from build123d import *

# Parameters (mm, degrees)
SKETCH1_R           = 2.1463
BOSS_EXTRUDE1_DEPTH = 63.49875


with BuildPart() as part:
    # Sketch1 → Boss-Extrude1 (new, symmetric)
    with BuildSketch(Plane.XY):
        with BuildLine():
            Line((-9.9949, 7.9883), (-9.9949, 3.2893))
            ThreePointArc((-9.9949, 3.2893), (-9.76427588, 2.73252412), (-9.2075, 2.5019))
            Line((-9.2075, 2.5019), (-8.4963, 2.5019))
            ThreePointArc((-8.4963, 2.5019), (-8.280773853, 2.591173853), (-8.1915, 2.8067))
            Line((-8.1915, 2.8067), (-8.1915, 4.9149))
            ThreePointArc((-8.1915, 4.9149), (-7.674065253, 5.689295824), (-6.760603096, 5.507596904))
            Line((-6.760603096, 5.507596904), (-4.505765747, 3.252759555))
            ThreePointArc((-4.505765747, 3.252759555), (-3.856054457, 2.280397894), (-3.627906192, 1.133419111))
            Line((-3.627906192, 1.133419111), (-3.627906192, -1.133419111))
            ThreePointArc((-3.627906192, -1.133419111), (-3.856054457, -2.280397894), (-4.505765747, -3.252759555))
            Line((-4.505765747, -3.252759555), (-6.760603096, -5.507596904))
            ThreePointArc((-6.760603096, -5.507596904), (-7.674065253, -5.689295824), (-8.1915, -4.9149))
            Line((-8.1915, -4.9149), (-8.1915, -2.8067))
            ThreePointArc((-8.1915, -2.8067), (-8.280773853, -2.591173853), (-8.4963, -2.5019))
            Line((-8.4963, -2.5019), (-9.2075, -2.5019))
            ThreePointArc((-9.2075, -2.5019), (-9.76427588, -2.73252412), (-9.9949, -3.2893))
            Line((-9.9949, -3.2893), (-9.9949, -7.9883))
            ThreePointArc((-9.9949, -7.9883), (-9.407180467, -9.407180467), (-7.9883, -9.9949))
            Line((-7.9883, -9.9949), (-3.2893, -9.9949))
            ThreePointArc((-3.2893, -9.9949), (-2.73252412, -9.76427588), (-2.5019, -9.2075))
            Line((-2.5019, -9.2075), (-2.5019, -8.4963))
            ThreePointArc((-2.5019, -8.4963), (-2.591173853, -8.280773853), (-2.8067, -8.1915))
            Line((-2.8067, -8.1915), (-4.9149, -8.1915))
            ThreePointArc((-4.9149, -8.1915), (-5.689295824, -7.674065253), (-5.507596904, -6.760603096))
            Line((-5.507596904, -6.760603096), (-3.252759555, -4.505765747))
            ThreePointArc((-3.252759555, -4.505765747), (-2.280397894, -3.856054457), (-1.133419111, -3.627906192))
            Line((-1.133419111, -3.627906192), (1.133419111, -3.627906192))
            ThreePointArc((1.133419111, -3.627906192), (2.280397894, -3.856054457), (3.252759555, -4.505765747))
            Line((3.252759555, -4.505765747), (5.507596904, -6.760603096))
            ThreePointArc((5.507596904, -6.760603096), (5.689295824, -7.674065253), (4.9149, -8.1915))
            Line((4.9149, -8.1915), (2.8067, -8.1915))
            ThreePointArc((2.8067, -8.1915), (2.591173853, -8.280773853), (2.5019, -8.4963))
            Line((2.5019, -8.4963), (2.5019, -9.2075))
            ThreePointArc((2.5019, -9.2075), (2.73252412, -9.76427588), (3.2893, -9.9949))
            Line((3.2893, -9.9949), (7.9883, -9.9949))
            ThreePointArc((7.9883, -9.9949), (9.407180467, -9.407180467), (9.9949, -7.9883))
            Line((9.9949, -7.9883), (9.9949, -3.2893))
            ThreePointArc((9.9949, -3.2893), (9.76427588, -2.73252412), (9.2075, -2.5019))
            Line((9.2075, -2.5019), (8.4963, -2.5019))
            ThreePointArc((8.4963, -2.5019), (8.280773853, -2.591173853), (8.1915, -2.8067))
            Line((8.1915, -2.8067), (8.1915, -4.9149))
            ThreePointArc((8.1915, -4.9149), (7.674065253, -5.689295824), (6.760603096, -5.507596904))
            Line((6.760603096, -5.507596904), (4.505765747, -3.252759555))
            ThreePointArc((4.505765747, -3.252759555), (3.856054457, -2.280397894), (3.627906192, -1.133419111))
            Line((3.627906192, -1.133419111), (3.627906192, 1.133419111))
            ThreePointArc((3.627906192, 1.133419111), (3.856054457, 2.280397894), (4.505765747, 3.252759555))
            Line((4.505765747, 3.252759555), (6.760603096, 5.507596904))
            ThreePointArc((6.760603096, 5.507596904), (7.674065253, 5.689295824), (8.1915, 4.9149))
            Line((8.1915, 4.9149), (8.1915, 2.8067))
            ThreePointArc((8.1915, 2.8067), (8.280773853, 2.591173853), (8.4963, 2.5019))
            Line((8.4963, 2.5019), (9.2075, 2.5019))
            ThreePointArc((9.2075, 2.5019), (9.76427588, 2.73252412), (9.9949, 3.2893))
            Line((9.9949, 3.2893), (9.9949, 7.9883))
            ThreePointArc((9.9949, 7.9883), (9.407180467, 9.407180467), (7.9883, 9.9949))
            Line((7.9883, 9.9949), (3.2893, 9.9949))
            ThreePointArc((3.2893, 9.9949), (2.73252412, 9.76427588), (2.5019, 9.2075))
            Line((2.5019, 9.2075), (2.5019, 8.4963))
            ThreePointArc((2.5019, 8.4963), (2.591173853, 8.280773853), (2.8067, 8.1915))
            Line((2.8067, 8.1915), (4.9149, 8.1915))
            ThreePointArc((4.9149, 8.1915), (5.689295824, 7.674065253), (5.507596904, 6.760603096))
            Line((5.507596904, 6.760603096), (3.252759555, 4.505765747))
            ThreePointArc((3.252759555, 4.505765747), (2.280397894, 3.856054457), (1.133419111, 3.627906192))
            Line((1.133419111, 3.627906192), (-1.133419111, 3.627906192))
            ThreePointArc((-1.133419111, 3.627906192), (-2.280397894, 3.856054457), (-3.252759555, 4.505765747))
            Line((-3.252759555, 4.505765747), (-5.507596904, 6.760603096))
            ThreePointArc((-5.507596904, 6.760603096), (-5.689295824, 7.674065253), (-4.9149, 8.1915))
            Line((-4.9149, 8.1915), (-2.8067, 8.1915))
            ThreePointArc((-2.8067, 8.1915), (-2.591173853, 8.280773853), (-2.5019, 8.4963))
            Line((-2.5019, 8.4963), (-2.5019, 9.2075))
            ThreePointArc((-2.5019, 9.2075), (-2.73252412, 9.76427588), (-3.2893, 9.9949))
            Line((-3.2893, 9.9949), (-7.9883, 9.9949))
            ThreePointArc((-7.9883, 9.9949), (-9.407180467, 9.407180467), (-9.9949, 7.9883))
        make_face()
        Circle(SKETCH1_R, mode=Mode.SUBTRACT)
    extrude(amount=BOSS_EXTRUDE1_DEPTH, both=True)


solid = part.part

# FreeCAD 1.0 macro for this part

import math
import FreeCAD as App
import Part
import Sketcher
Q = App.Units.Quantity

doc = App.newDocument("Part")
params = doc.addObject("Spreadsheet::Sheet", "Params")
for row, (alias, value) in enumerate([
    ("sketch1_diameter", "0.169 in"),
    ("sketch1_radius", "0.031 in"),
    ("sketch1_radius2", "0.012 in"),
    ("sketch1_radius3", "0.033 in"),
    ("sketch1_radius4", "0.118 in"),
    ("pad1_length", "126.9975 mm"),
], start=1):
    params.set(f"A{row}", alias)
    params.set(f"B{row}", "=" + value)
    params.setAlias(f"B{row}", alias)

body = doc.addObject("PartDesign::Body", "Body")

sketch1 = doc.addObject("Sketcher::SketchObject", "Sketch")
body.addObject(sketch1)
sketch1.AttachmentSupport = (doc.XY_Plane, [""])
sketch1.MapMode = "FlatFace"
sketch1.addGeometry([
    Part.LineSegment(App.Vector(-9.99, 7.99, 0), App.Vector(-9.99, 3.29, 0)),
    Part.ArcOfCircle(Part.Circle(App.Vector(-9.21, 3.29, 0), App.Vector(0, 0, 1), 0.79), math.radians(180), math.radians(270)),
    Part.LineSegment(App.Vector(-9.21, 2.5, 0), App.Vector(-8.5, 2.5, 0)),
    Part.ArcOfCircle(Part.Circle(App.Vector(-8.5, 2.81, 0), App.Vector(0, 0, 1), 0.3), math.radians(-90), math.radians(0)),
    Part.LineSegment(App.Vector(-8.19, 2.81, 0), App.Vector(-8.19, 4.91, 0)),
    Part.ArcOfCircle(Part.Circle(App.Vector(-7.35, 4.91, 0), App.Vector(0, 0, 1), 0.84), math.radians(45), math.radians(180)),
    Part.LineSegment(App.Vector(-6.76, 5.51, 0), App.Vector(-4.51, 3.25, 0)),
    Part.ArcOfCircle(Part.Circle(App.Vector(-6.63, 1.13, 0), App.Vector(0, 0, 1), 3), math.radians(0), math.radians(45)),
    Part.LineSegment(App.Vector(-3.63, 1.13, 0), App.Vector(-3.63, -1.13, 0)),
    Part.ArcOfCircle(Part.Circle(App.Vector(-6.63, -1.13, 0), App.Vector(0, 0, 1), 3), math.radians(-45), math.radians(0)),
    Part.LineSegment(App.Vector(-4.51, -3.25, 0), App.Vector(-6.76, -5.51, 0)),
    Part.ArcOfCircle(Part.Circle(App.Vector(-7.35, -4.91, 0), App.Vector(0, 0, 1), 0.84), math.radians(180), math.radians(315)),
    Part.LineSegment(App.Vector(-8.19, -4.91, 0), App.Vector(-8.19, -2.81, 0)),
    Part.ArcOfCircle(Part.Circle(App.Vector(-8.5, -2.81, 0), App.Vector(0, 0, 1), 0.3), math.radians(0), math.radians(90)),
    Part.LineSegment(App.Vector(-8.5, -2.5, 0), App.Vector(-9.21, -2.5, 0)),
    Part.ArcOfCircle(Part.Circle(App.Vector(-9.21, -3.29, 0), App.Vector(0, 0, 1), 0.79), math.radians(90), math.radians(180)),
    Part.LineSegment(App.Vector(-9.99, -3.29, 0), App.Vector(-9.99, -7.99, 0)),
    Part.ArcOfCircle(Part.Circle(App.Vector(-7.99, -7.99, 0), App.Vector(0, 0, 1), 2.01), math.radians(180), math.radians(270)),
    Part.LineSegment(App.Vector(-7.99, -9.99, 0), App.Vector(-3.29, -9.99, 0)),
    Part.ArcOfCircle(Part.Circle(App.Vector(-3.29, -9.21, 0), App.Vector(0, 0, 1), 0.79), math.radians(-90), math.radians(0)),
    Part.LineSegment(App.Vector(-2.5, -9.21, 0), App.Vector(-2.5, -8.5, 0)),
    Part.ArcOfCircle(Part.Circle(App.Vector(-2.81, -8.5, 0), App.Vector(0, 0, 1), 0.3), math.radians(0), math.radians(90)),
    Part.LineSegment(App.Vector(-2.81, -8.19, 0), App.Vector(-4.91, -8.19, 0)),
    Part.ArcOfCircle(Part.Circle(App.Vector(-4.91, -7.35, 0), App.Vector(0, 0, 1), 0.84), math.radians(135), math.radians(270)),
    Part.LineSegment(App.Vector(-5.51, -6.76, 0), App.Vector(-3.25, -4.51, 0)),
    Part.ArcOfCircle(Part.Circle(App.Vector(-1.13, -6.63, 0), App.Vector(0, 0, 1), 3), math.radians(90), math.radians(135)),
    Part.LineSegment(App.Vector(-1.13, -3.63, 0), App.Vector(1.13, -3.63, 0)),
    Part.ArcOfCircle(Part.Circle(App.Vector(1.13, -6.63, 0), App.Vector(0, 0, 1), 3), math.radians(45), math.radians(90)),
    Part.LineSegment(App.Vector(3.25, -4.51, 0), App.Vector(5.51, -6.76, 0)),
    Part.ArcOfCircle(Part.Circle(App.Vector(4.91, -7.35, 0), App.Vector(0, 0, 1), 0.84), math.radians(-90), math.radians(45)),
    Part.LineSegment(App.Vector(4.91, -8.19, 0), App.Vector(2.81, -8.19, 0)),
    Part.ArcOfCircle(Part.Circle(App.Vector(2.81, -8.5, 0), App.Vector(0, 0, 1), 0.3), math.radians(90), math.radians(180)),
    Part.LineSegment(App.Vector(2.5, -8.5, 0), App.Vector(2.5, -9.21, 0)),
    Part.ArcOfCircle(Part.Circle(App.Vector(3.29, -9.21, 0), App.Vector(0, 0, 1), 0.79), math.radians(180), math.radians(270)),
    Part.LineSegment(App.Vector(3.29, -9.99, 0), App.Vector(7.99, -9.99, 0)),
    Part.ArcOfCircle(Part.Circle(App.Vector(7.99, -7.99, 0), App.Vector(0, 0, 1), 2.01), math.radians(-90), math.radians(0)),
    Part.LineSegment(App.Vector(9.99, -7.99, 0), App.Vector(9.99, -3.29, 0)),
    Part.ArcOfCircle(Part.Circle(App.Vector(9.21, -3.29, 0), App.Vector(0, 0, 1), 0.79), math.radians(0), math.radians(90)),
    Part.LineSegment(App.Vector(9.21, -2.5, 0), App.Vector(8.5, -2.5, 0)),
    Part.ArcOfCircle(Part.Circle(App.Vector(8.5, -2.81, 0), App.Vector(0, 0, 1), 0.3), math.radians(90), math.radians(180)),
    Part.LineSegment(App.Vector(8.19, -2.81, 0), App.Vector(8.19, -4.91, 0)),
    Part.ArcOfCircle(Part.Circle(App.Vector(7.35, -4.91, 0), App.Vector(0, 0, 1), 0.84), math.radians(-135), math.radians(0)),
    Part.LineSegment(App.Vector(6.76, -5.51, 0), App.Vector(4.51, -3.25, 0)),
    Part.ArcOfCircle(Part.Circle(App.Vector(6.63, -1.13, 0), App.Vector(0, 0, 1), 3), math.radians(180), math.radians(225)),
    Part.LineSegment(App.Vector(3.63, -1.13, 0), App.Vector(3.63, 1.13, 0)),
    Part.ArcOfCircle(Part.Circle(App.Vector(6.63, 1.13, 0), App.Vector(0, 0, 1), 3), math.radians(135), math.radians(180)),
    Part.LineSegment(App.Vector(4.51, 3.25, 0), App.Vector(6.76, 5.51, 0)),
    Part.ArcOfCircle(Part.Circle(App.Vector(7.35, 4.91, 0), App.Vector(0, 0, 1), 0.84), math.radians(0), math.radians(135)),
    Part.LineSegment(App.Vector(8.19, 4.91, 0), App.Vector(8.19, 2.81, 0)),
    Part.ArcOfCircle(Part.Circle(App.Vector(8.5, 2.81, 0), App.Vector(0, 0, 1), 0.3), math.radians(180), math.radians(270)),
    Part.LineSegment(App.Vector(8.5, 2.5, 0), App.Vector(9.21, 2.5, 0)),
    Part.ArcOfCircle(Part.Circle(App.Vector(9.21, 3.29, 0), App.Vector(0, 0, 1), 0.79), math.radians(-90), math.radians(0)),
    Part.LineSegment(App.Vector(9.99, 3.29, 0), App.Vector(9.99, 7.99, 0)),
    Part.ArcOfCircle(Part.Circle(App.Vector(7.99, 7.99, 0), App.Vector(0, 0, 1), 2.01), math.radians(0), math.radians(90)),
    Part.LineSegment(App.Vector(7.99, 9.99, 0), App.Vector(3.29, 9.99, 0)),
    Part.ArcOfCircle(Part.Circle(App.Vector(3.29, 9.21, 0), App.Vector(0, 0, 1), 0.79), math.radians(90), math.radians(180)),
    Part.LineSegment(App.Vector(2.5, 9.21, 0), App.Vector(2.5, 8.5, 0)),
    Part.ArcOfCircle(Part.Circle(App.Vector(2.81, 8.5, 0), App.Vector(0, 0, 1), 0.3), math.radians(180), math.radians(270)),
    Part.LineSegment(App.Vector(2.81, 8.19, 0), App.Vector(4.91, 8.19, 0)),
    Part.ArcOfCircle(Part.Circle(App.Vector(4.91, 7.35, 0), App.Vector(0, 0, 1), 0.84), math.radians(-45), math.radians(90)),
    Part.LineSegment(App.Vector(5.51, 6.76, 0), App.Vector(3.25, 4.51, 0)),
    Part.ArcOfCircle(Part.Circle(App.Vector(1.13, 6.63, 0), App.Vector(0, 0, 1), 3), math.radians(-90), math.radians(-45)),
    Part.LineSegment(App.Vector(1.13, 3.63, 0), App.Vector(-1.13, 3.63, 0)),
    Part.ArcOfCircle(Part.Circle(App.Vector(-1.13, 6.63, 0), App.Vector(0, 0, 1), 3), math.radians(-135), math.radians(-90)),
    Part.LineSegment(App.Vector(-3.25, 4.51, 0), App.Vector(-5.51, 6.76, 0)),
    Part.ArcOfCircle(Part.Circle(App.Vector(-4.91, 7.35, 0), App.Vector(0, 0, 1), 0.84), math.radians(90), math.radians(225)),
    Part.LineSegment(App.Vector(-4.91, 8.19, 0), App.Vector(-2.81, 8.19, 0)),
    Part.ArcOfCircle(Part.Circle(App.Vector(-2.81, 8.5, 0), App.Vector(0, 0, 1), 0.3), math.radians(-90), math.radians(0)),
    Part.LineSegment(App.Vector(-2.5, 8.5, 0), App.Vector(-2.5, 9.21, 0)),
    Part.ArcOfCircle(Part.Circle(App.Vector(-3.29, 9.21, 0), App.Vector(0, 0, 1), 0.79), math.radians(0), math.radians(90)),
    Part.LineSegment(App.Vector(-3.29, 9.99, 0), App.Vector(-7.99, 9.99, 0)),
    Part.ArcOfCircle(Part.Circle(App.Vector(-7.99, 7.99, 0), App.Vector(0, 0, 1), 2.01), math.radians(90), math.radians(180)),
    Part.Circle(App.Vector(0, 0, 0), App.Vector(0, 0, 1), 2.15),
], False)
sketch1.addConstraint([
    Sketcher.Constraint("Tangent", 0, 2, 1, 1),
    Sketcher.Constraint("Tangent", 1, 2, 2, 1),
    Sketcher.Constraint("Tangent", 2, 2, 3, 1),
    Sketcher.Constraint("Tangent", 3, 2, 4, 1),
    Sketcher.Constraint("Tangent", 4, 2, 5, 2),
    Sketcher.Constraint("Tangent", 5, 1, 6, 1),
    Sketcher.Constraint("Tangent", 6, 2, 7, 2),
    Sketcher.Constraint("Tangent", 7, 1, 8, 1),
    Sketcher.Constraint("Tangent", 8, 2, 9, 2),
    Sketcher.Constraint("Tangent", 9, 1, 10, 1),
    Sketcher.Constraint("Tangent", 10, 2, 11, 2),
    Sketcher.Constraint("Tangent", 11, 1, 12, 1),
    Sketcher.Constraint("Tangent", 12, 2, 13, 1),
    Sketcher.Constraint("Tangent", 13, 2, 14, 1),
    Sketcher.Constraint("Tangent", 14, 2, 15, 1),
    Sketcher.Constraint("Tangent", 15, 2, 16, 1),
    Sketcher.Constraint("Tangent", 16, 2, 17, 1),
    Sketcher.Constraint("Tangent", 17, 2, 18, 1),
    Sketcher.Constraint("Tangent", 18, 2, 19, 1),
    Sketcher.Constraint("Tangent", 19, 2, 20, 1),
    Sketcher.Constraint("Tangent", 20, 2, 21, 1),
    Sketcher.Constraint("Tangent", 21, 2, 22, 1),
    Sketcher.Constraint("Tangent", 22, 2, 23, 2),
    Sketcher.Constraint("Tangent", 23, 1, 24, 1),
    Sketcher.Constraint("Tangent", 24, 2, 25, 2),
    Sketcher.Constraint("Tangent", 25, 1, 26, 1),
    Sketcher.Constraint("Tangent", 26, 2, 27, 2),
    Sketcher.Constraint("Tangent", 27, 1, 28, 1),
    Sketcher.Constraint("Tangent", 28, 2, 29, 2),
    Sketcher.Constraint("Tangent", 29, 1, 30, 1),
    Sketcher.Constraint("Tangent", 30, 2, 31, 1),
    Sketcher.Constraint("Tangent", 31, 2, 32, 1),
    Sketcher.Constraint("Tangent", 32, 2, 33, 1),
    Sketcher.Constraint("Tangent", 33, 2, 34, 1),
    Sketcher.Constraint("Tangent", 34, 2, 35, 1),
    Sketcher.Constraint("Tangent", 35, 2, 36, 1),
    Sketcher.Constraint("Tangent", 36, 2, 37, 1),
    Sketcher.Constraint("Tangent", 37, 2, 38, 1),
    Sketcher.Constraint("Tangent", 38, 2, 39, 1),
    Sketcher.Constraint("Tangent", 39, 2, 40, 1),
    Sketcher.Constraint("Tangent", 40, 2, 41, 2),
    Sketcher.Constraint("Tangent", 41, 1, 42, 1),
    Sketcher.Constraint("Tangent", 42, 2, 43, 2),
    Sketcher.Constraint("Tangent", 43, 1, 44, 1),
    Sketcher.Constraint("Tangent", 44, 2, 45, 2),
    Sketcher.Constraint("Tangent", 45, 1, 46, 1),
    Sketcher.Constraint("Tangent", 46, 2, 47, 2),
    Sketcher.Constraint("Tangent", 47, 1, 48, 1),
    Sketcher.Constraint("Tangent", 48, 2, 49, 1),
    Sketcher.Constraint("Tangent", 49, 2, 50, 1),
    Sketcher.Constraint("Tangent", 50, 2, 51, 1),
    Sketcher.Constraint("Tangent", 51, 2, 52, 1),
    Sketcher.Constraint("Tangent", 52, 2, 53, 1),
    Sketcher.Constraint("Tangent", 53, 2, 54, 1),
    Sketcher.Constraint("Tangent", 54, 2, 55, 1),
    Sketcher.Constraint("Tangent", 55, 2, 56, 1),
    Sketcher.Constraint("Tangent", 56, 2, 57, 1),
    Sketcher.Constraint("Tangent", 57, 2, 58, 1),
    Sketcher.Constraint("Tangent", 58, 2, 59, 2),
    Sketcher.Constraint("Tangent", 59, 1, 60, 1),
    Sketcher.Constraint("Tangent", 60, 2, 61, 2),
    Sketcher.Constraint("Tangent", 61, 1, 62, 1),
    Sketcher.Constraint("Tangent", 62, 2, 63, 2),
    Sketcher.Constraint("Tangent", 63, 1, 64, 1),
    Sketcher.Constraint("Tangent", 64, 2, 65, 2),
    Sketcher.Constraint("Tangent", 65, 1, 66, 1),
    Sketcher.Constraint("Tangent", 66, 2, 67, 1),
    Sketcher.Constraint("Tangent", 67, 2, 68, 1),
    Sketcher.Constraint("Tangent", 68, 2, 69, 1),
    Sketcher.Constraint("Tangent", 69, 2, 70, 1),
    Sketcher.Constraint("Tangent", 70, 2, 71, 1),
    Sketcher.Constraint("Tangent", 71, 2, 0, 1),
    Sketcher.Constraint("Vertical", 0),
    Sketcher.Constraint("Horizontal", 2),
    Sketcher.Constraint("Vertical", 4),
    Sketcher.Constraint("Vertical", 8),
    Sketcher.Constraint("Vertical", 12),
    Sketcher.Constraint("Horizontal", 14),
    Sketcher.Constraint("Vertical", 16),
    Sketcher.Constraint("Horizontal", 18),
    Sketcher.Constraint("Vertical", 20),
    Sketcher.Constraint("Horizontal", 22),
    Sketcher.Constraint("Horizontal", 26),
    Sketcher.Constraint("Horizontal", 30),
    Sketcher.Constraint("Vertical", 32),
    Sketcher.Constraint("Horizontal", 34),
    Sketcher.Constraint("Vertical", 36),
    Sketcher.Constraint("Horizontal", 38),
    Sketcher.Constraint("Vertical", 40),
    Sketcher.Constraint("Vertical", 44),
    Sketcher.Constraint("Vertical", 48),
    Sketcher.Constraint("Horizontal", 50),
    Sketcher.Constraint("Vertical", 52),
    Sketcher.Constraint("Horizontal", 54),
    Sketcher.Constraint("Vertical", 56),
    Sketcher.Constraint("Horizontal", 58),
    Sketcher.Constraint("Horizontal", 62),
    Sketcher.Constraint("Horizontal", 66),
    Sketcher.Constraint("Vertical", 68),
    Sketcher.Constraint("Horizontal", 70),
    Sketcher.Constraint("Coincident", 72, 3, -1, 1),
    Sketcher.Constraint("Equal", 7, 9),
    Sketcher.Constraint("Equal", 5, 11),
    Sketcher.Constraint("Equal", 3, 13),
    Sketcher.Constraint("Equal", 1, 15),
    Sketcher.Constraint("Equal", 15, 19),
    Sketcher.Constraint("Equal", 13, 21),
    Sketcher.Constraint("Equal", 11, 23),
    Sketcher.Constraint("Equal", 9, 25),
    Sketcher.Constraint("Equal", 25, 27),
    Sketcher.Constraint("Equal", 23, 29),
    Sketcher.Constraint("Equal", 21, 31),
    Sketcher.Constraint("Equal", 19, 33),
    Sketcher.Constraint("Equal", 17, 35),
    Sketcher.Constraint("Equal", 33, 37),
    Sketcher.Constraint("Equal", 31, 39),
    Sketcher.Constraint("Equal", 29, 41),
    Sketcher.Constraint("Equal", 27, 43),
    Sketcher.Constraint("Equal", 43, 45),
    Sketcher.Constraint("Equal", 41, 47),
    Sketcher.Constraint("Equal", 39, 49),
    Sketcher.Constraint("Equal", 37, 51),
    Sketcher.Constraint("Equal", 35, 53),
    Sketcher.Constraint("Equal", 51, 55),
    Sketcher.Constraint("Equal", 49, 57),
    Sketcher.Constraint("Equal", 47, 59),
    Sketcher.Constraint("Equal", 45, 61),
    Sketcher.Constraint("Equal", 61, 63),
    Sketcher.Constraint("Equal", 59, 65),
    Sketcher.Constraint("Equal", 57, 67),
    Sketcher.Constraint("Equal", 55, 69),
    Sketcher.Constraint("Equal", 53, 71),
    Sketcher.Constraint("Symmetric", 1, 3, 37, 3, -1, 1),
    Sketcher.Constraint("Symmetric", 5, 3, 41, 3, -1, 1),
    Sketcher.Constraint("Symmetric", 7, 3, 43, 3, -1, 1),
    Sketcher.Constraint("Symmetric", 11, 3, 47, 3, -1, 1),
    Sketcher.Constraint("Symmetric", 15, 3, 51, 3, -1, 1),
    Sketcher.Constraint("Symmetric", 19, 3, 55, 3, -1, 1),
    Sketcher.Constraint("Symmetric", 23, 3, 59, 3, -1, 1),
    Sketcher.Constraint("Symmetric", 25, 3, 61, 3, -1, 1),
    Sketcher.Constraint("Symmetric", 29, 3, 65, 3, -1, 1),
    Sketcher.Constraint("Symmetric", 33, 3, 69, 3, -1, 1),
    Sketcher.Constraint("Symmetric", 23, 3, 29, 3, -2),
    Sketcher.Constraint("Symmetric", 19, 3, 33, 3, -2),
    Sketcher.Constraint("Symmetric", 15, 3, 37, 3, -2),
    Sketcher.Constraint("Symmetric", 11, 3, 41, 3, -2),
    Sketcher.Constraint("Perpendicular", 6, 10),
    Sketcher.Constraint("Parallel", 10, 24),
    Sketcher.Constraint("Perpendicular", 24, 28),
    Sketcher.Constraint("Perpendicular", 42, 46),
    Sketcher.Constraint("Perpendicular", 60, 64),
    Sketcher.Constraint("Horizontal", 9, 3, 43, 3),
    Sketcher.Constraint("Equal", 70, 0),
    Sketcher.Constraint("Equal", 66, 4),
    Sketcher.Constraint("Equal", 62, 8),
    Sketcher.Constraint("Equal", 50, 20),
    Sketcher.Constraint("Equal", 10, 24),
    Sketcher.Constraint("Diameter", 72, Q("0.169 in")),
    Sketcher.Constraint("Radius", 1, Q("0.031 in")),
    Sketcher.Constraint("Radius", 3, Q("0.012 in")),
    Sketcher.Constraint("Radius", 5, Q("0.033 in")),
    Sketcher.Constraint("Radius", 7, Q("0.118 in")),
    Sketcher.Constraint("Radius", 17, Q("0.079 in")),
    Sketcher.Constraint("DistanceX", 2, 1, 2, 2, Q("0.028 in")),
    Sketcher.Constraint("DistanceX", 18, 1, 18, 2, Q("0.185 in")),
    Sketcher.Constraint("DistanceX", 22, 2, 22, 1, Q("0.083 in")),
    Sketcher.Constraint("DistanceX", 1, 3, -1, 1, Q("0.3625 in")),
    Sketcher.Constraint("DistanceX", 26, 1, 26, 2, 2.266838),
])
sketch1.setExpression("Constraints[157]", "Params.sketch1_diameter")
sketch1.setExpression("Constraints[158]", "Params.sketch1_radius")
sketch1.setExpression("Constraints[159]", "Params.sketch1_radius2")
sketch1.setExpression("Constraints[160]", "Params.sketch1_radius3")
sketch1.setExpression("Constraints[161]", "Params.sketch1_radius4")
pad1 = doc.addObject("PartDesign::Pad", "Pad")
body.addObject(pad1)
pad1.Profile = sketch1
pad1.setExpression("Length", "Params.pad1_length")
pad1.Midplane = True

doc.recompute()
